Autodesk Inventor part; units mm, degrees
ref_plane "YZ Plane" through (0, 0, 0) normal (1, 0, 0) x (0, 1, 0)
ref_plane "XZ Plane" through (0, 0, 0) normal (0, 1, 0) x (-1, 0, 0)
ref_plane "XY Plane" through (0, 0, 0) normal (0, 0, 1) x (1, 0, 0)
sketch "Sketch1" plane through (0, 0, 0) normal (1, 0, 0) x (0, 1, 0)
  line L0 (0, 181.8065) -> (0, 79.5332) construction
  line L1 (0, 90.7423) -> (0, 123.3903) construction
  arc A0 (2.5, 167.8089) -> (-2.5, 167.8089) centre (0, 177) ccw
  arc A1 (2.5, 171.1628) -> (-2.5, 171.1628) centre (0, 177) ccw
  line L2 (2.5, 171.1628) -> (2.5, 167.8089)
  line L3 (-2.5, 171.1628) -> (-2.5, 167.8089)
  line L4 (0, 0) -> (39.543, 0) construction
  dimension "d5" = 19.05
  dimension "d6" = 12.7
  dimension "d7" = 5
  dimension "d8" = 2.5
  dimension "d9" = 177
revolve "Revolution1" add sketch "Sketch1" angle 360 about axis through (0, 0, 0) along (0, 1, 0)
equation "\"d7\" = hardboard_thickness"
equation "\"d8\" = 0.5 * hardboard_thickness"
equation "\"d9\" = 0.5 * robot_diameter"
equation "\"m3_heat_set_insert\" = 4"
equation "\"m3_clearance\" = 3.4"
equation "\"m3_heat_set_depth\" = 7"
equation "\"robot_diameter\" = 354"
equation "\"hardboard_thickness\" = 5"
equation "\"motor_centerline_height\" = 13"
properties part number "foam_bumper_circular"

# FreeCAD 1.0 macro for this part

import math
import FreeCAD as App
import Part
import Sketcher
from FreeCAD import Vector
Q = App.Units.Quantity

doc = App.newDocument("Part")
body = doc.addObject("PartDesign::Body", "Body")

sketch1 = doc.addObject("Sketcher::SketchObject", "Sketch")
body.addObject(sketch1)
sketch1.AttachmentSupport = (doc.YZ_Plane, [""])
sketch1.MapMode = "FlatFace"
sketch1.addGeometry(Part.LineSegment(Vector(2.5, 171.2, 0), Vector(2.5, 167.8, 0)), False)
sketch1.addGeometry(Part.ArcOfCircle(Part.Circle(Vector(0, 177, 0), Vector(0, 0, 1), 9.5), math.radians(-75), math.radians(255)), False)
sketch1.addGeometry(Part.LineSegment(Vector(-2.5, 167.8, 0), Vector(-2.5, 171.2, 0)), False)
sketch1.addGeometry(Part.ArcOfCircle(Part.Circle(Vector(0, 177, 0), Vector(0, 0, 1), 6.4), math.radians(-67), math.radians(247)), False)
sketch1.addConstraint(Sketcher.Constraint("Coincident", 0, 2, 1, 1))
sketch1.addConstraint(Sketcher.Constraint("Coincident", 1, 2, 2, 1))
sketch1.addConstraint(Sketcher.Constraint("Coincident", 2, 2, 3, 2))
sketch1.addConstraint(Sketcher.Constraint("Coincident", 3, 1, 0, 1))
sketch1.addConstraint(Sketcher.Constraint("Vertical", 0))
sketch1.addConstraint(Sketcher.Constraint("Vertical", 2))
sketch1.addConstraint(Sketcher.Constraint("Coincident", 3, 3, 1, 3))
sketch1.addConstraint(Sketcher.Constraint("Symmetric", 0, 2, 1, 2, -2))
sketch1.addConstraint(Sketcher.Constraint("Radius", 3, Q("0.25 in")))
sketch1.addConstraint(Sketcher.Constraint("Radius", 1, Q("0.375 in")))
sketch1.addConstraint(Sketcher.Constraint("DistanceY", -1, 1, 1, 3, Q("6.9685 in")))
sketch1.addConstraint(Sketcher.Constraint("DistanceX", -1, 1, 0, 2, 2.5))
revolution = doc.addObject("PartDesign::Revolution", "Revolution")
body.addObject(revolution)
revolution.Profile = sketch1
revolution.ReferenceAxis = (sketch1, ["H_Axis"])
revolution.Angle = 360

doc.recompute()
